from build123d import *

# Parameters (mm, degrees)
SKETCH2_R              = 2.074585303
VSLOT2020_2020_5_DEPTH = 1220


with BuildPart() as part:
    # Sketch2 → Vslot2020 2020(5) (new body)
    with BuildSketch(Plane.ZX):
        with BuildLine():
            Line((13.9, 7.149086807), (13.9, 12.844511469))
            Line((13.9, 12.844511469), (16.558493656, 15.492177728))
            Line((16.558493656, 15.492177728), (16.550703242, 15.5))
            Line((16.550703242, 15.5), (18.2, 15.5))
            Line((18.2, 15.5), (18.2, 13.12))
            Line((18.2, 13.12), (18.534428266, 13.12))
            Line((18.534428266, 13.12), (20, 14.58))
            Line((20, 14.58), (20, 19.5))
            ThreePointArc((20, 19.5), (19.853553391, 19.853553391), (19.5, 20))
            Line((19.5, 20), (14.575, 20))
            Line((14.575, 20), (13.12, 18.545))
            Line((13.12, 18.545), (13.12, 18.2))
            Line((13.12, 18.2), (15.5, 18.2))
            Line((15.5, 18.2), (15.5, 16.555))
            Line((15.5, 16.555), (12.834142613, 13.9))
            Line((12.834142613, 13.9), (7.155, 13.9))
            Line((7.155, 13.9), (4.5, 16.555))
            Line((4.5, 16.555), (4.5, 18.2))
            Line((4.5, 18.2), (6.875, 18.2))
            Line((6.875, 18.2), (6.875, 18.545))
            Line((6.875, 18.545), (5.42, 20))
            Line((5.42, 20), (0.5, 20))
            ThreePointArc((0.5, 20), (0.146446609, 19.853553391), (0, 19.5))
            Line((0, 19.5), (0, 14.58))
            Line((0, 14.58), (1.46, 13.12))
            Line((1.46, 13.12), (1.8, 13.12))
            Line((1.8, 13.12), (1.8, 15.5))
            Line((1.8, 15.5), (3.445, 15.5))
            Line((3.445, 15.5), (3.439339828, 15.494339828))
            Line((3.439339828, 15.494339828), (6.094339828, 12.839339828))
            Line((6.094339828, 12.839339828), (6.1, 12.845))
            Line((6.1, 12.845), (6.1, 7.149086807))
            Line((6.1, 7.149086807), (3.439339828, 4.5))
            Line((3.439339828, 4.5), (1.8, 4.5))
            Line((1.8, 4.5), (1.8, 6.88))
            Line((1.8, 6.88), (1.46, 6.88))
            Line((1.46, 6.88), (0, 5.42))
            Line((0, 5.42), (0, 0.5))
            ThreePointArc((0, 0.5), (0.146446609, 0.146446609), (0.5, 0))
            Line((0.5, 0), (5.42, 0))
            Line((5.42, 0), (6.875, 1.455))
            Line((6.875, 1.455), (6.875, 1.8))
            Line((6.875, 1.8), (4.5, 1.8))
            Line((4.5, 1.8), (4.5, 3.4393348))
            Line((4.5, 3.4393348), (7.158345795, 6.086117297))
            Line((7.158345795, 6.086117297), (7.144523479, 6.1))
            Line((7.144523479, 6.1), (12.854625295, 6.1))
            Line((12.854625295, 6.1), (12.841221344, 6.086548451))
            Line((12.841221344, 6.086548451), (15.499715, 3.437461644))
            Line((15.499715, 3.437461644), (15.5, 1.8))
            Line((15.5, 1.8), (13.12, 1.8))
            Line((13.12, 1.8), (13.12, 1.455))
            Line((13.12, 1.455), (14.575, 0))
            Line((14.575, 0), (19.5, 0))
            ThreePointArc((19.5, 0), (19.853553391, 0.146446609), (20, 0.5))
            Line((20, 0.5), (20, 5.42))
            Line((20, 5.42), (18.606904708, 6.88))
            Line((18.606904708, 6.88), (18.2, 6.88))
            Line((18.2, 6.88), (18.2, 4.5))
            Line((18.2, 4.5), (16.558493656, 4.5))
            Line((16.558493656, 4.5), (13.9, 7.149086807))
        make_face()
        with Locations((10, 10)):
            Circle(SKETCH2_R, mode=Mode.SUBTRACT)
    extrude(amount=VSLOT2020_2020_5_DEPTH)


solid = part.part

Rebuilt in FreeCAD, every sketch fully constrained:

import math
import FreeCAD as App
import Part
import Sketcher

doc = App.newDocument("Part")
body = doc.addObject("PartDesign::Body", "Body")

sketch1 = doc.addObject("Sketcher::SketchObject", "Sketch")
body.addObject(sketch1)
sketch1.AttachmentSupport = (doc.XZ_Plane, [""])
sketch1.MapMode = "FlatFace"
sketch1.addGeometry([
    Part.LineSegment(App.Vector(7.149, 13.9, 0), App.Vector(12.845, 13.9, 0)),
    Part.LineSegment(App.Vector(12.845, 13.9, 0), App.Vector(15.492, 16.558, 0)),
    Part.LineSegment(App.Vector(15.492, 16.558, 0), App.Vector(15.5, 16.551, 0)),
    Part.LineSegment(App.Vector(15.5, 16.551, 0), App.Vector(15.5, 18.2, 0)),
    Part.LineSegment(App.Vector(15.5, 18.2, 0), App.Vector(13.12, 18.2, 0)),
    Part.LineSegment(App.Vector(13.12, 18.2, 0), App.Vector(13.12, 18.534, 0)),
    Part.LineSegment(App.Vector(13.12, 18.534, 0), App.Vector(14.58, 20, 0)),
    Part.LineSegment(App.Vector(14.58, 20, 0), App.Vector(19.5, 20, 0)),
    Part.ArcOfCircle(Part.Circle(App.Vector(19.5, 19.5, 0), App.Vector(0, 0, 1), 0.5), math.radians(0), math.radians(90)),
    Part.LineSegment(App.Vector(20, 19.5, 0), App.Vector(20, 14.575, 0)),
    Part.LineSegment(App.Vector(20, 14.575, 0), App.Vector(18.545, 13.12, 0)),
    Part.LineSegment(App.Vector(18.545, 13.12, 0), App.Vector(18.2, 13.12, 0)),
    Part.LineSegment(App.Vector(18.2, 13.12, 0), App.Vector(18.2, 15.5, 0)),
    Part.LineSegment(App.Vector(18.2, 15.5, 0), App.Vector(16.555, 15.5, 0)),
    Part.LineSegment(App.Vector(16.555, 15.5, 0), App.Vector(13.9, 12.834, 0)),
    Part.LineSegment(App.Vector(13.9, 12.834, 0), App.Vector(13.9, 7.155, 0)),
    Part.LineSegment(App.Vector(13.9, 7.155, 0), App.Vector(16.555, 4.5, 0)),
    Part.LineSegment(App.Vector(16.555, 4.5, 0), App.Vector(18.2, 4.5, 0)),
    Part.LineSegment(App.Vector(18.2, 4.5, 0), App.Vector(18.2, 6.875, 0)),
    Part.LineSegment(App.Vector(18.2, 6.875, 0), App.Vector(18.545, 6.875, 0)),
    Part.LineSegment(App.Vector(18.545, 6.875, 0), App.Vector(20, 5.42, 0)),
    Part.LineSegment(App.Vector(20, 5.42, 0), App.Vector(20, 0.5, 0)),
    Part.ArcOfCircle(Part.Circle(App.Vector(19.5, 0.5, 0), App.Vector(0, 0, 1), 0.5), math.radians(-90), math.radians(0)),
    Part.LineSegment(App.Vector(19.5, 0, 0), App.Vector(14.58, 0, 0)),
    Part.LineSegment(App.Vector(14.58, 0, 0), App.Vector(13.12, 1.46, 0)),
    Part.LineSegment(App.Vector(13.12, 1.46, 0), App.Vector(13.12, 1.8, 0)),
    Part.LineSegment(App.Vector(13.12, 1.8, 0), App.Vector(15.5, 1.8, 0)),
    Part.LineSegment(App.Vector(15.5, 1.8, 0), App.Vector(15.5, 3.445, 0)),
    Part.LineSegment(App.Vector(15.5, 3.445, 0), App.Vector(15.494, 3.439, 0)),
    Part.LineSegment(App.Vector(15.494, 3.439, 0), App.Vector(12.839, 6.094, 0)),
    Part.LineSegment(App.Vector(12.839, 6.094, 0), App.Vector(12.845, 6.1, 0)),
    Part.LineSegment(App.Vector(12.845, 6.1, 0), App.Vector(7.149, 6.1, 0)),
    Part.LineSegment(App.Vector(7.149, 6.1, 0), App.Vector(4.5, 3.439, 0)),
    Part.LineSegment(App.Vector(4.5, 3.439, 0), App.Vector(4.5, 1.8, 0)),
    Part.LineSegment(App.Vector(4.5, 1.8, 0), App.Vector(6.88, 1.8, 0)),
    Part.LineSegment(App.Vector(6.88, 1.8, 0), App.Vector(6.88, 1.46, 0)),
    Part.LineSegment(App.Vector(6.88, 1.46, 0), App.Vector(5.42, 0, 0)),
    Part.LineSegment(App.Vector(5.42, 0, 0), App.Vector(0.5, 0, 0)),
    Part.ArcOfCircle(Part.Circle(App.Vector(0.5, 0.5, 0), App.Vector(0, 0, 1), 0.5), math.radians(180), math.radians(270)),
    Part.LineSegment(App.Vector(0, 0.5, 0), App.Vector(0, 5.42, 0)),
    Part.LineSegment(App.Vector(0, 5.42, 0), App.Vector(1.455, 6.875, 0)),
    Part.LineSegment(App.Vector(1.455, 6.875, 0), App.Vector(1.8, 6.875, 0)),
    Part.LineSegment(App.Vector(1.8, 6.875, 0), App.Vector(1.8, 4.5, 0)),
    Part.LineSegment(App.Vector(1.8, 4.5, 0), App.Vector(3.439, 4.5, 0)),
    Part.LineSegment(App.Vector(3.439, 4.5, 0), App.Vector(6.086, 7.158, 0)),
    Part.LineSegment(App.Vector(6.086, 7.158, 0), App.Vector(6.1, 7.145, 0)),
    Part.LineSegment(App.Vector(6.1, 7.145, 0), App.Vector(6.1, 12.855, 0)),
    Part.LineSegment(App.Vector(6.1, 12.855, 0), App.Vector(6.087, 12.841, 0)),
    Part.LineSegment(App.Vector(6.087, 12.841, 0), App.Vector(3.437, 15.5, 0)),
    Part.LineSegment(App.Vector(3.437, 15.5, 0), App.Vector(1.8, 15.5, 0)),
    Part.LineSegment(App.Vector(1.8, 15.5, 0), App.Vector(1.8, 13.12, 0)),
    Part.LineSegment(App.Vector(1.8, 13.12, 0), App.Vector(1.455, 13.12, 0)),
    Part.LineSegment(App.Vector(1.455, 13.12, 0), App.Vector(0, 14.575, 0)),
    Part.LineSegment(App.Vector(0, 14.575, 0), App.Vector(0, 19.5, 0)),
    Part.ArcOfCircle(Part.Circle(App.Vector(0.5, 19.5, 0), App.Vector(0, 0, 1), 0.5), math.radians(90), math.radians(180)),
    Part.LineSegment(App.Vector(0.5, 20, 0), App.Vector(5.42, 20, 0)),
    Part.LineSegment(App.Vector(5.42, 20, 0), App.Vector(6.88, 18.607, 0)),
    Part.LineSegment(App.Vector(6.88, 18.607, 0), App.Vector(6.88, 18.2, 0)),
    Part.LineSegment(App.Vector(6.88, 18.2, 0), App.Vector(4.5, 18.2, 0)),
    Part.LineSegment(App.Vector(4.5, 18.2, 0), App.Vector(4.5, 16.558, 0)),
    Part.LineSegment(App.Vector(4.5, 16.558, 0), App.Vector(7.149, 13.9, 0)),
    Part.Circle(App.Vector(10, 10, 0), App.Vector(0, 0, 1), 2.075),
], False)
sketch1.addConstraint([
    Sketcher.Constraint("Coincident", 0, 2, 1, 1),
    Sketcher.Constraint("Coincident", 1, 2, 2, 1),
    Sketcher.Constraint("Coincident", 2, 2, 3, 1),
    Sketcher.Constraint("Coincident", 3, 2, 4, 1),
    Sketcher.Constraint("Coincident", 4, 2, 5, 1),
    Sketcher.Constraint("Coincident", 5, 2, 6, 1),
    Sketcher.Constraint("Coincident", 6, 2, 7, 1),
    Sketcher.Constraint("Tangent", 7, 2, 8, 2),
    Sketcher.Constraint("Tangent", 8, 1, 9, 1),
    Sketcher.Constraint("Coincident", 9, 2, 10, 1),
    Sketcher.Constraint("Coincident", 10, 2, 11, 1),
    Sketcher.Constraint("Coincident", 11, 2, 12, 1),
    Sketcher.Constraint("Coincident", 12, 2, 13, 1),
    Sketcher.Constraint("Coincident", 13, 2, 14, 1),
    Sketcher.Constraint("Coincident", 14, 2, 15, 1),
    Sketcher.Constraint("Coincident", 15, 2, 16, 1),
    Sketcher.Constraint("Coincident", 16, 2, 17, 1),
    Sketcher.Constraint("Coincident", 17, 2, 18, 1),
    Sketcher.Constraint("Coincident", 18, 2, 19, 1),
    Sketcher.Constraint("Coincident", 19, 2, 20, 1),
    Sketcher.Constraint("Coincident", 20, 2, 21, 1),
    Sketcher.Constraint("Tangent", 21, 2, 22, 2),
    Sketcher.Constraint("Tangent", 22, 1, 23, 1),
    Sketcher.Constraint("Coincident", 23, 2, 24, 1),
    Sketcher.Constraint("Coincident", 24, 2, 25, 1),
    Sketcher.Constraint("Coincident", 25, 2, 26, 1),
    Sketcher.Constraint("Coincident", 26, 2, 27, 1),
    Sketcher.Constraint("Coincident", 27, 2, 28, 1),
    Sketcher.Constraint("Coincident", 28, 2, 29, 1),
    Sketcher.Constraint("Coincident", 29, 2, 30, 1),
    Sketcher.Constraint("Coincident", 30, 2, 31, 1),
    Sketcher.Constraint("Coincident", 31, 2, 32, 1),
    Sketcher.Constraint("Coincident", 32, 2, 33, 1),
    Sketcher.Constraint("Coincident", 33, 2, 34, 1),
    Sketcher.Constraint("Coincident", 34, 2, 35, 1),
    Sketcher.Constraint("Coincident", 35, 2, 36, 1),
    Sketcher.Constraint("Coincident", 36, 2, 37, 1),
    Sketcher.Constraint("Tangent", 37, 2, 38, 2),
    Sketcher.Constraint("Tangent", 38, 1, 39, 1),
    Sketcher.Constraint("Coincident", 39, 2, 40, 1),
    Sketcher.Constraint("Coincident", 40, 2, 41, 1),
    Sketcher.Constraint("Coincident", 41, 2, 42, 1),
    Sketcher.Constraint("Coincident", 42, 2, 43, 1),
    Sketcher.Constraint("Coincident", 43, 2, 44, 1),
    Sketcher.Constraint("Coincident", 44, 2, 45, 1),
    Sketcher.Constraint("Coincident", 45, 2, 46, 1),
    Sketcher.Constraint("Coincident", 46, 2, 47, 1),
    Sketcher.Constraint("Coincident", 47, 2, 48, 1),
    Sketcher.Constraint("Coincident", 48, 2, 49, 1),
    Sketcher.Constraint("Coincident", 49, 2, 50, 1),
    Sketcher.Constraint("Coincident", 50, 2, 51, 1),
    Sketcher.Constraint("Coincident", 51, 2, 52, 1),
    Sketcher.Constraint("Coincident", 52, 2, 53, 1),
    Sketcher.Constraint("Tangent", 53, 2, 54, 2),
    Sketcher.Constraint("Tangent", 54, 1, 55, 1),
    Sketcher.Constraint("Coincident", 55, 2, 56, 1),
    Sketcher.Constraint("Coincident", 56, 2, 57, 1),
    Sketcher.Constraint("Coincident", 57, 2, 58, 1),
    Sketcher.Constraint("Coincident", 58, 2, 59, 1),
    Sketcher.Constraint("Coincident", 59, 2, 60, 1),
    Sketcher.Constraint("Coincident", 60, 2, 0, 1),
    Sketcher.Constraint("Horizontal", 0),
    Sketcher.Constraint("Vertical", 3),
    Sketcher.Constraint("Horizontal", 4),
    Sketcher.Constraint("Vertical", 5),
    Sketcher.Constraint("Horizontal", 7),
    Sketcher.Constraint("Vertical", 9),
    Sketcher.Constraint("Horizontal", 11),
    Sketcher.Constraint("Vertical", 12),
    Sketcher.Constraint("Horizontal", 13),
    Sketcher.Constraint("Vertical", 15),
    Sketcher.Constraint("Horizontal", 17),
    Sketcher.Constraint("Vertical", 18),
    Sketcher.Constraint("Horizontal", 19),
    Sketcher.Constraint("Vertical", 21),
    Sketcher.Constraint("Horizontal", 23),
    Sketcher.Constraint("Vertical", 25),
    Sketcher.Constraint("Horizontal", 26),
    Sketcher.Constraint("Vertical", 27),
    Sketcher.Constraint("Horizontal", 31),
    Sketcher.Constraint("Vertical", 33),
    Sketcher.Constraint("Horizontal", 34),
    Sketcher.Constraint("Vertical", 35),
    Sketcher.Constraint("Horizontal", 37),
    Sketcher.Constraint("Vertical", 39),
    Sketcher.Constraint("Horizontal", 41),
    Sketcher.Constraint("Vertical", 42),
    Sketcher.Constraint("Horizontal", 43),
    Sketcher.Constraint("Vertical", 46),
    Sketcher.Constraint("Vertical", 50),
    Sketcher.Constraint("Horizontal", 51),
    Sketcher.Constraint("Vertical", 53),
    Sketcher.Constraint("Horizontal", 55),
    Sketcher.Constraint("Vertical", 57),
    Sketcher.Constraint("Horizontal", 58),
    Sketcher.Constraint("Vertical", 59),
    Sketcher.Constraint("Equal", 8, 22),
    Sketcher.Constraint("Equal", 22, 38),
    Sketcher.Constraint("Equal", 38, 54),
    Sketcher.Constraint("PointOnObject", 22, 1, -1),
    Sketcher.Constraint("PointOnObject", 36, 2, -1),
    Sketcher.Constraint("PointOnObject", 38, 1, -2),
    Sketcher.Constraint("PointOnObject", 52, 2, -2),
    Sketcher.Constraint("Perpendicular", 1, 2),
    Sketcher.Constraint("Perpendicular", 2, 14),
    Sketcher.Constraint("Perpendicular", 10, 16),
    Sketcher.Constraint("Parallel", 16, 20),
    Sketcher.Constraint("Parallel", 20, 24),
    Sketcher.Constraint("Perpendicular", 24, 28),
    Sketcher.Constraint("Parallel", 24, 29),
    Sketcher.Constraint("Perpendicular", 29, 30),
    Sketcher.Constraint("Parallel", 30, 36),
    Sketcher.Constraint("Parallel", 36, 40),
    Sketcher.Constraint("Parallel", 32, 44),
    Sketcher.Constraint("Perpendicular", 44, 45),
    Sketcher.Constraint("Perpendicular", 47, 48),
    Sketcher.Constraint("Perpendicular", 40, 52),
    Sketcher.Constraint("Parallel", 48, 60),
    Sketcher.Constraint("Horizontal", 8, 3, 54, 3),
    Sketcher.Constraint("Horizontal", 28, 2, 32, 2),
    Sketcher.Constraint("Horizontal", 26, 2, 33, 2),
    Sketcher.Constraint("Horizontal", 24, 2, 35, 2),
    Sketcher.Constraint("Horizontal", 20, 2, 39, 2),
    Sketcher.Constraint("Horizontal", 19, 2, 40, 2),
    Sketcher.Constraint("Horizontal", 17, 2, 42, 2),
    Sketcher.Constraint("Horizontal", 13, 2, 49, 2),
    Sketcher.Constraint("Horizontal", 11, 2, 50, 2),
    Sketcher.Constraint("Horizontal", 9, 2, 52, 2),
    Sketcher.Constraint("Horizontal", 4, 2, 57, 2),
    Sketcher.Constraint("Horizontal", 1, 2, 59, 2),
    Sketcher.Constraint("Vertical", 8, 3, 22, 3),
    Sketcher.Constraint("Vertical", 13, 2, 16, 2),
    Sketcher.Constraint("Vertical", 12, 2, 17, 2),
    Sketcher.Constraint("Vertical", 10, 2, 19, 2),
    Sketcher.Constraint("Vertical", 6, 2, 23, 2),
    Sketcher.Constraint("Vertical", 5, 2, 24, 2),
    Sketcher.Constraint("Vertical", 3, 2, 26, 2),
    Sketcher.Constraint("Vertical", 42, 2, 49, 2),
    Sketcher.Constraint("Vertical", 40, 2, 51, 2),
    Sketcher.Constraint("Vertical", 36, 2, 55, 2),
    Sketcher.Constraint("Vertical", 35, 2, 56, 2),
    Sketcher.Constraint("Vertical", 33, 2, 58, 2),
    Sketcher.Constraint("Vertical", 31, 2, 60, 2),
    Sketcher.Constraint("Equal", 26, 34),
    Sketcher.Constraint("Equal", 23, 37),
    Sketcher.Constraint("Equal", 19, 41),
    Sketcher.Constraint("Equal", 58, 12),
    Sketcher.Constraint("Equal", 55, 21),
    Sketcher.Constraint("Equal", 17, 27),
    Sketcher.Constraint("Equal", 16, 29),
    Sketcher.Constraint("Equal", 28, 30),
    Sketcher.Constraint("Equal", 48, 60),
    Sketcher.Constraint("Radius", 8, 0.5),
    Sketcher.Constraint("DistanceX", -1, 1, 61, 3, 10.0),
    Sketcher.Constraint("DistanceY", -1, 1, 61, 3, 10.0),
    Sketcher.Constraint("DistanceY", -1, 1, 6, 2, 20.0),
    Sketcher.Constraint("DistanceX", -1, 1, 8, 1, 20.0),
    Sketcher.Constraint("DistanceX", 4, 2, 4, 1, 2.38),
    Sketcher.Constraint("DistanceX", 7, 1, 7, 2, 4.92),
    Sketcher.Constraint("DistanceY", 25, 1, 25, 2, 0.34),
    Sketcher.Constraint("DistanceY", -1, 1, 0, 2, 13.9),
    Sketcher.Constraint("DistanceX", -1, 1, 2, 2, 15.5),
    Sketcher.Constraint("DistanceY", -1, 1, 3, 2, 18.2),
    Sketcher.Constraint("DistanceX", -1, 1, 11, 2, 18.2),
    Sketcher.Constraint("DistanceY", -1, 1, 12, 2, 15.5),
    Sketcher.Constraint("DistanceX", -1, 1, 14, 2, 13.9),
    Sketcher.Constraint("DistanceY", -1, 1, 16, 2, 4.5),
    Sketcher.Constraint("DistanceX", -1, 1, 45, 2, 6.1),
    Sketcher.Constraint("Diameter", 61, 4.149171),
    Sketcher.Constraint("DistanceX", 11, 2, 11, 1, 0.345),
    Sketcher.Constraint("DistanceX", 13, 2, 13, 1, 1.645),
    Sketcher.Constraint("DistanceY", 46, 1, 46, 2, 5.710102),
    Sketcher.Constraint("Distance", 44, 3.751301),
    Sketcher.Constraint("DistanceY", 5, 1, 5, 2, 0.334428),
    Sketcher.Constraint("DistanceY", 33, 2, 33, 1, 1.63934),
    Sketcher.Constraint("Distance", 1, 3.752029),
    Sketcher.Constraint("Distance", 2, 0.01104),
    Sketcher.Constraint("Distance", 45, 0.01959),
    Sketcher.Constraint("Distance", 47, 0.01899),
    Sketcher.Constraint("Distance", 49, 1.637462),
    Sketcher.Constraint("DistanceX", 0, 1, 0, 2, 5.695425),
    Sketcher.Constraint("DistanceY", 57, 2, 57, 1, 0.406905),
])
pad1 = doc.addObject("PartDesign::Pad", "Pad")
body.addObject(pad1)
pad1.Profile = sketch1
pad1.Length = 1220
pad1.Reversed = True

doc.recompute()
